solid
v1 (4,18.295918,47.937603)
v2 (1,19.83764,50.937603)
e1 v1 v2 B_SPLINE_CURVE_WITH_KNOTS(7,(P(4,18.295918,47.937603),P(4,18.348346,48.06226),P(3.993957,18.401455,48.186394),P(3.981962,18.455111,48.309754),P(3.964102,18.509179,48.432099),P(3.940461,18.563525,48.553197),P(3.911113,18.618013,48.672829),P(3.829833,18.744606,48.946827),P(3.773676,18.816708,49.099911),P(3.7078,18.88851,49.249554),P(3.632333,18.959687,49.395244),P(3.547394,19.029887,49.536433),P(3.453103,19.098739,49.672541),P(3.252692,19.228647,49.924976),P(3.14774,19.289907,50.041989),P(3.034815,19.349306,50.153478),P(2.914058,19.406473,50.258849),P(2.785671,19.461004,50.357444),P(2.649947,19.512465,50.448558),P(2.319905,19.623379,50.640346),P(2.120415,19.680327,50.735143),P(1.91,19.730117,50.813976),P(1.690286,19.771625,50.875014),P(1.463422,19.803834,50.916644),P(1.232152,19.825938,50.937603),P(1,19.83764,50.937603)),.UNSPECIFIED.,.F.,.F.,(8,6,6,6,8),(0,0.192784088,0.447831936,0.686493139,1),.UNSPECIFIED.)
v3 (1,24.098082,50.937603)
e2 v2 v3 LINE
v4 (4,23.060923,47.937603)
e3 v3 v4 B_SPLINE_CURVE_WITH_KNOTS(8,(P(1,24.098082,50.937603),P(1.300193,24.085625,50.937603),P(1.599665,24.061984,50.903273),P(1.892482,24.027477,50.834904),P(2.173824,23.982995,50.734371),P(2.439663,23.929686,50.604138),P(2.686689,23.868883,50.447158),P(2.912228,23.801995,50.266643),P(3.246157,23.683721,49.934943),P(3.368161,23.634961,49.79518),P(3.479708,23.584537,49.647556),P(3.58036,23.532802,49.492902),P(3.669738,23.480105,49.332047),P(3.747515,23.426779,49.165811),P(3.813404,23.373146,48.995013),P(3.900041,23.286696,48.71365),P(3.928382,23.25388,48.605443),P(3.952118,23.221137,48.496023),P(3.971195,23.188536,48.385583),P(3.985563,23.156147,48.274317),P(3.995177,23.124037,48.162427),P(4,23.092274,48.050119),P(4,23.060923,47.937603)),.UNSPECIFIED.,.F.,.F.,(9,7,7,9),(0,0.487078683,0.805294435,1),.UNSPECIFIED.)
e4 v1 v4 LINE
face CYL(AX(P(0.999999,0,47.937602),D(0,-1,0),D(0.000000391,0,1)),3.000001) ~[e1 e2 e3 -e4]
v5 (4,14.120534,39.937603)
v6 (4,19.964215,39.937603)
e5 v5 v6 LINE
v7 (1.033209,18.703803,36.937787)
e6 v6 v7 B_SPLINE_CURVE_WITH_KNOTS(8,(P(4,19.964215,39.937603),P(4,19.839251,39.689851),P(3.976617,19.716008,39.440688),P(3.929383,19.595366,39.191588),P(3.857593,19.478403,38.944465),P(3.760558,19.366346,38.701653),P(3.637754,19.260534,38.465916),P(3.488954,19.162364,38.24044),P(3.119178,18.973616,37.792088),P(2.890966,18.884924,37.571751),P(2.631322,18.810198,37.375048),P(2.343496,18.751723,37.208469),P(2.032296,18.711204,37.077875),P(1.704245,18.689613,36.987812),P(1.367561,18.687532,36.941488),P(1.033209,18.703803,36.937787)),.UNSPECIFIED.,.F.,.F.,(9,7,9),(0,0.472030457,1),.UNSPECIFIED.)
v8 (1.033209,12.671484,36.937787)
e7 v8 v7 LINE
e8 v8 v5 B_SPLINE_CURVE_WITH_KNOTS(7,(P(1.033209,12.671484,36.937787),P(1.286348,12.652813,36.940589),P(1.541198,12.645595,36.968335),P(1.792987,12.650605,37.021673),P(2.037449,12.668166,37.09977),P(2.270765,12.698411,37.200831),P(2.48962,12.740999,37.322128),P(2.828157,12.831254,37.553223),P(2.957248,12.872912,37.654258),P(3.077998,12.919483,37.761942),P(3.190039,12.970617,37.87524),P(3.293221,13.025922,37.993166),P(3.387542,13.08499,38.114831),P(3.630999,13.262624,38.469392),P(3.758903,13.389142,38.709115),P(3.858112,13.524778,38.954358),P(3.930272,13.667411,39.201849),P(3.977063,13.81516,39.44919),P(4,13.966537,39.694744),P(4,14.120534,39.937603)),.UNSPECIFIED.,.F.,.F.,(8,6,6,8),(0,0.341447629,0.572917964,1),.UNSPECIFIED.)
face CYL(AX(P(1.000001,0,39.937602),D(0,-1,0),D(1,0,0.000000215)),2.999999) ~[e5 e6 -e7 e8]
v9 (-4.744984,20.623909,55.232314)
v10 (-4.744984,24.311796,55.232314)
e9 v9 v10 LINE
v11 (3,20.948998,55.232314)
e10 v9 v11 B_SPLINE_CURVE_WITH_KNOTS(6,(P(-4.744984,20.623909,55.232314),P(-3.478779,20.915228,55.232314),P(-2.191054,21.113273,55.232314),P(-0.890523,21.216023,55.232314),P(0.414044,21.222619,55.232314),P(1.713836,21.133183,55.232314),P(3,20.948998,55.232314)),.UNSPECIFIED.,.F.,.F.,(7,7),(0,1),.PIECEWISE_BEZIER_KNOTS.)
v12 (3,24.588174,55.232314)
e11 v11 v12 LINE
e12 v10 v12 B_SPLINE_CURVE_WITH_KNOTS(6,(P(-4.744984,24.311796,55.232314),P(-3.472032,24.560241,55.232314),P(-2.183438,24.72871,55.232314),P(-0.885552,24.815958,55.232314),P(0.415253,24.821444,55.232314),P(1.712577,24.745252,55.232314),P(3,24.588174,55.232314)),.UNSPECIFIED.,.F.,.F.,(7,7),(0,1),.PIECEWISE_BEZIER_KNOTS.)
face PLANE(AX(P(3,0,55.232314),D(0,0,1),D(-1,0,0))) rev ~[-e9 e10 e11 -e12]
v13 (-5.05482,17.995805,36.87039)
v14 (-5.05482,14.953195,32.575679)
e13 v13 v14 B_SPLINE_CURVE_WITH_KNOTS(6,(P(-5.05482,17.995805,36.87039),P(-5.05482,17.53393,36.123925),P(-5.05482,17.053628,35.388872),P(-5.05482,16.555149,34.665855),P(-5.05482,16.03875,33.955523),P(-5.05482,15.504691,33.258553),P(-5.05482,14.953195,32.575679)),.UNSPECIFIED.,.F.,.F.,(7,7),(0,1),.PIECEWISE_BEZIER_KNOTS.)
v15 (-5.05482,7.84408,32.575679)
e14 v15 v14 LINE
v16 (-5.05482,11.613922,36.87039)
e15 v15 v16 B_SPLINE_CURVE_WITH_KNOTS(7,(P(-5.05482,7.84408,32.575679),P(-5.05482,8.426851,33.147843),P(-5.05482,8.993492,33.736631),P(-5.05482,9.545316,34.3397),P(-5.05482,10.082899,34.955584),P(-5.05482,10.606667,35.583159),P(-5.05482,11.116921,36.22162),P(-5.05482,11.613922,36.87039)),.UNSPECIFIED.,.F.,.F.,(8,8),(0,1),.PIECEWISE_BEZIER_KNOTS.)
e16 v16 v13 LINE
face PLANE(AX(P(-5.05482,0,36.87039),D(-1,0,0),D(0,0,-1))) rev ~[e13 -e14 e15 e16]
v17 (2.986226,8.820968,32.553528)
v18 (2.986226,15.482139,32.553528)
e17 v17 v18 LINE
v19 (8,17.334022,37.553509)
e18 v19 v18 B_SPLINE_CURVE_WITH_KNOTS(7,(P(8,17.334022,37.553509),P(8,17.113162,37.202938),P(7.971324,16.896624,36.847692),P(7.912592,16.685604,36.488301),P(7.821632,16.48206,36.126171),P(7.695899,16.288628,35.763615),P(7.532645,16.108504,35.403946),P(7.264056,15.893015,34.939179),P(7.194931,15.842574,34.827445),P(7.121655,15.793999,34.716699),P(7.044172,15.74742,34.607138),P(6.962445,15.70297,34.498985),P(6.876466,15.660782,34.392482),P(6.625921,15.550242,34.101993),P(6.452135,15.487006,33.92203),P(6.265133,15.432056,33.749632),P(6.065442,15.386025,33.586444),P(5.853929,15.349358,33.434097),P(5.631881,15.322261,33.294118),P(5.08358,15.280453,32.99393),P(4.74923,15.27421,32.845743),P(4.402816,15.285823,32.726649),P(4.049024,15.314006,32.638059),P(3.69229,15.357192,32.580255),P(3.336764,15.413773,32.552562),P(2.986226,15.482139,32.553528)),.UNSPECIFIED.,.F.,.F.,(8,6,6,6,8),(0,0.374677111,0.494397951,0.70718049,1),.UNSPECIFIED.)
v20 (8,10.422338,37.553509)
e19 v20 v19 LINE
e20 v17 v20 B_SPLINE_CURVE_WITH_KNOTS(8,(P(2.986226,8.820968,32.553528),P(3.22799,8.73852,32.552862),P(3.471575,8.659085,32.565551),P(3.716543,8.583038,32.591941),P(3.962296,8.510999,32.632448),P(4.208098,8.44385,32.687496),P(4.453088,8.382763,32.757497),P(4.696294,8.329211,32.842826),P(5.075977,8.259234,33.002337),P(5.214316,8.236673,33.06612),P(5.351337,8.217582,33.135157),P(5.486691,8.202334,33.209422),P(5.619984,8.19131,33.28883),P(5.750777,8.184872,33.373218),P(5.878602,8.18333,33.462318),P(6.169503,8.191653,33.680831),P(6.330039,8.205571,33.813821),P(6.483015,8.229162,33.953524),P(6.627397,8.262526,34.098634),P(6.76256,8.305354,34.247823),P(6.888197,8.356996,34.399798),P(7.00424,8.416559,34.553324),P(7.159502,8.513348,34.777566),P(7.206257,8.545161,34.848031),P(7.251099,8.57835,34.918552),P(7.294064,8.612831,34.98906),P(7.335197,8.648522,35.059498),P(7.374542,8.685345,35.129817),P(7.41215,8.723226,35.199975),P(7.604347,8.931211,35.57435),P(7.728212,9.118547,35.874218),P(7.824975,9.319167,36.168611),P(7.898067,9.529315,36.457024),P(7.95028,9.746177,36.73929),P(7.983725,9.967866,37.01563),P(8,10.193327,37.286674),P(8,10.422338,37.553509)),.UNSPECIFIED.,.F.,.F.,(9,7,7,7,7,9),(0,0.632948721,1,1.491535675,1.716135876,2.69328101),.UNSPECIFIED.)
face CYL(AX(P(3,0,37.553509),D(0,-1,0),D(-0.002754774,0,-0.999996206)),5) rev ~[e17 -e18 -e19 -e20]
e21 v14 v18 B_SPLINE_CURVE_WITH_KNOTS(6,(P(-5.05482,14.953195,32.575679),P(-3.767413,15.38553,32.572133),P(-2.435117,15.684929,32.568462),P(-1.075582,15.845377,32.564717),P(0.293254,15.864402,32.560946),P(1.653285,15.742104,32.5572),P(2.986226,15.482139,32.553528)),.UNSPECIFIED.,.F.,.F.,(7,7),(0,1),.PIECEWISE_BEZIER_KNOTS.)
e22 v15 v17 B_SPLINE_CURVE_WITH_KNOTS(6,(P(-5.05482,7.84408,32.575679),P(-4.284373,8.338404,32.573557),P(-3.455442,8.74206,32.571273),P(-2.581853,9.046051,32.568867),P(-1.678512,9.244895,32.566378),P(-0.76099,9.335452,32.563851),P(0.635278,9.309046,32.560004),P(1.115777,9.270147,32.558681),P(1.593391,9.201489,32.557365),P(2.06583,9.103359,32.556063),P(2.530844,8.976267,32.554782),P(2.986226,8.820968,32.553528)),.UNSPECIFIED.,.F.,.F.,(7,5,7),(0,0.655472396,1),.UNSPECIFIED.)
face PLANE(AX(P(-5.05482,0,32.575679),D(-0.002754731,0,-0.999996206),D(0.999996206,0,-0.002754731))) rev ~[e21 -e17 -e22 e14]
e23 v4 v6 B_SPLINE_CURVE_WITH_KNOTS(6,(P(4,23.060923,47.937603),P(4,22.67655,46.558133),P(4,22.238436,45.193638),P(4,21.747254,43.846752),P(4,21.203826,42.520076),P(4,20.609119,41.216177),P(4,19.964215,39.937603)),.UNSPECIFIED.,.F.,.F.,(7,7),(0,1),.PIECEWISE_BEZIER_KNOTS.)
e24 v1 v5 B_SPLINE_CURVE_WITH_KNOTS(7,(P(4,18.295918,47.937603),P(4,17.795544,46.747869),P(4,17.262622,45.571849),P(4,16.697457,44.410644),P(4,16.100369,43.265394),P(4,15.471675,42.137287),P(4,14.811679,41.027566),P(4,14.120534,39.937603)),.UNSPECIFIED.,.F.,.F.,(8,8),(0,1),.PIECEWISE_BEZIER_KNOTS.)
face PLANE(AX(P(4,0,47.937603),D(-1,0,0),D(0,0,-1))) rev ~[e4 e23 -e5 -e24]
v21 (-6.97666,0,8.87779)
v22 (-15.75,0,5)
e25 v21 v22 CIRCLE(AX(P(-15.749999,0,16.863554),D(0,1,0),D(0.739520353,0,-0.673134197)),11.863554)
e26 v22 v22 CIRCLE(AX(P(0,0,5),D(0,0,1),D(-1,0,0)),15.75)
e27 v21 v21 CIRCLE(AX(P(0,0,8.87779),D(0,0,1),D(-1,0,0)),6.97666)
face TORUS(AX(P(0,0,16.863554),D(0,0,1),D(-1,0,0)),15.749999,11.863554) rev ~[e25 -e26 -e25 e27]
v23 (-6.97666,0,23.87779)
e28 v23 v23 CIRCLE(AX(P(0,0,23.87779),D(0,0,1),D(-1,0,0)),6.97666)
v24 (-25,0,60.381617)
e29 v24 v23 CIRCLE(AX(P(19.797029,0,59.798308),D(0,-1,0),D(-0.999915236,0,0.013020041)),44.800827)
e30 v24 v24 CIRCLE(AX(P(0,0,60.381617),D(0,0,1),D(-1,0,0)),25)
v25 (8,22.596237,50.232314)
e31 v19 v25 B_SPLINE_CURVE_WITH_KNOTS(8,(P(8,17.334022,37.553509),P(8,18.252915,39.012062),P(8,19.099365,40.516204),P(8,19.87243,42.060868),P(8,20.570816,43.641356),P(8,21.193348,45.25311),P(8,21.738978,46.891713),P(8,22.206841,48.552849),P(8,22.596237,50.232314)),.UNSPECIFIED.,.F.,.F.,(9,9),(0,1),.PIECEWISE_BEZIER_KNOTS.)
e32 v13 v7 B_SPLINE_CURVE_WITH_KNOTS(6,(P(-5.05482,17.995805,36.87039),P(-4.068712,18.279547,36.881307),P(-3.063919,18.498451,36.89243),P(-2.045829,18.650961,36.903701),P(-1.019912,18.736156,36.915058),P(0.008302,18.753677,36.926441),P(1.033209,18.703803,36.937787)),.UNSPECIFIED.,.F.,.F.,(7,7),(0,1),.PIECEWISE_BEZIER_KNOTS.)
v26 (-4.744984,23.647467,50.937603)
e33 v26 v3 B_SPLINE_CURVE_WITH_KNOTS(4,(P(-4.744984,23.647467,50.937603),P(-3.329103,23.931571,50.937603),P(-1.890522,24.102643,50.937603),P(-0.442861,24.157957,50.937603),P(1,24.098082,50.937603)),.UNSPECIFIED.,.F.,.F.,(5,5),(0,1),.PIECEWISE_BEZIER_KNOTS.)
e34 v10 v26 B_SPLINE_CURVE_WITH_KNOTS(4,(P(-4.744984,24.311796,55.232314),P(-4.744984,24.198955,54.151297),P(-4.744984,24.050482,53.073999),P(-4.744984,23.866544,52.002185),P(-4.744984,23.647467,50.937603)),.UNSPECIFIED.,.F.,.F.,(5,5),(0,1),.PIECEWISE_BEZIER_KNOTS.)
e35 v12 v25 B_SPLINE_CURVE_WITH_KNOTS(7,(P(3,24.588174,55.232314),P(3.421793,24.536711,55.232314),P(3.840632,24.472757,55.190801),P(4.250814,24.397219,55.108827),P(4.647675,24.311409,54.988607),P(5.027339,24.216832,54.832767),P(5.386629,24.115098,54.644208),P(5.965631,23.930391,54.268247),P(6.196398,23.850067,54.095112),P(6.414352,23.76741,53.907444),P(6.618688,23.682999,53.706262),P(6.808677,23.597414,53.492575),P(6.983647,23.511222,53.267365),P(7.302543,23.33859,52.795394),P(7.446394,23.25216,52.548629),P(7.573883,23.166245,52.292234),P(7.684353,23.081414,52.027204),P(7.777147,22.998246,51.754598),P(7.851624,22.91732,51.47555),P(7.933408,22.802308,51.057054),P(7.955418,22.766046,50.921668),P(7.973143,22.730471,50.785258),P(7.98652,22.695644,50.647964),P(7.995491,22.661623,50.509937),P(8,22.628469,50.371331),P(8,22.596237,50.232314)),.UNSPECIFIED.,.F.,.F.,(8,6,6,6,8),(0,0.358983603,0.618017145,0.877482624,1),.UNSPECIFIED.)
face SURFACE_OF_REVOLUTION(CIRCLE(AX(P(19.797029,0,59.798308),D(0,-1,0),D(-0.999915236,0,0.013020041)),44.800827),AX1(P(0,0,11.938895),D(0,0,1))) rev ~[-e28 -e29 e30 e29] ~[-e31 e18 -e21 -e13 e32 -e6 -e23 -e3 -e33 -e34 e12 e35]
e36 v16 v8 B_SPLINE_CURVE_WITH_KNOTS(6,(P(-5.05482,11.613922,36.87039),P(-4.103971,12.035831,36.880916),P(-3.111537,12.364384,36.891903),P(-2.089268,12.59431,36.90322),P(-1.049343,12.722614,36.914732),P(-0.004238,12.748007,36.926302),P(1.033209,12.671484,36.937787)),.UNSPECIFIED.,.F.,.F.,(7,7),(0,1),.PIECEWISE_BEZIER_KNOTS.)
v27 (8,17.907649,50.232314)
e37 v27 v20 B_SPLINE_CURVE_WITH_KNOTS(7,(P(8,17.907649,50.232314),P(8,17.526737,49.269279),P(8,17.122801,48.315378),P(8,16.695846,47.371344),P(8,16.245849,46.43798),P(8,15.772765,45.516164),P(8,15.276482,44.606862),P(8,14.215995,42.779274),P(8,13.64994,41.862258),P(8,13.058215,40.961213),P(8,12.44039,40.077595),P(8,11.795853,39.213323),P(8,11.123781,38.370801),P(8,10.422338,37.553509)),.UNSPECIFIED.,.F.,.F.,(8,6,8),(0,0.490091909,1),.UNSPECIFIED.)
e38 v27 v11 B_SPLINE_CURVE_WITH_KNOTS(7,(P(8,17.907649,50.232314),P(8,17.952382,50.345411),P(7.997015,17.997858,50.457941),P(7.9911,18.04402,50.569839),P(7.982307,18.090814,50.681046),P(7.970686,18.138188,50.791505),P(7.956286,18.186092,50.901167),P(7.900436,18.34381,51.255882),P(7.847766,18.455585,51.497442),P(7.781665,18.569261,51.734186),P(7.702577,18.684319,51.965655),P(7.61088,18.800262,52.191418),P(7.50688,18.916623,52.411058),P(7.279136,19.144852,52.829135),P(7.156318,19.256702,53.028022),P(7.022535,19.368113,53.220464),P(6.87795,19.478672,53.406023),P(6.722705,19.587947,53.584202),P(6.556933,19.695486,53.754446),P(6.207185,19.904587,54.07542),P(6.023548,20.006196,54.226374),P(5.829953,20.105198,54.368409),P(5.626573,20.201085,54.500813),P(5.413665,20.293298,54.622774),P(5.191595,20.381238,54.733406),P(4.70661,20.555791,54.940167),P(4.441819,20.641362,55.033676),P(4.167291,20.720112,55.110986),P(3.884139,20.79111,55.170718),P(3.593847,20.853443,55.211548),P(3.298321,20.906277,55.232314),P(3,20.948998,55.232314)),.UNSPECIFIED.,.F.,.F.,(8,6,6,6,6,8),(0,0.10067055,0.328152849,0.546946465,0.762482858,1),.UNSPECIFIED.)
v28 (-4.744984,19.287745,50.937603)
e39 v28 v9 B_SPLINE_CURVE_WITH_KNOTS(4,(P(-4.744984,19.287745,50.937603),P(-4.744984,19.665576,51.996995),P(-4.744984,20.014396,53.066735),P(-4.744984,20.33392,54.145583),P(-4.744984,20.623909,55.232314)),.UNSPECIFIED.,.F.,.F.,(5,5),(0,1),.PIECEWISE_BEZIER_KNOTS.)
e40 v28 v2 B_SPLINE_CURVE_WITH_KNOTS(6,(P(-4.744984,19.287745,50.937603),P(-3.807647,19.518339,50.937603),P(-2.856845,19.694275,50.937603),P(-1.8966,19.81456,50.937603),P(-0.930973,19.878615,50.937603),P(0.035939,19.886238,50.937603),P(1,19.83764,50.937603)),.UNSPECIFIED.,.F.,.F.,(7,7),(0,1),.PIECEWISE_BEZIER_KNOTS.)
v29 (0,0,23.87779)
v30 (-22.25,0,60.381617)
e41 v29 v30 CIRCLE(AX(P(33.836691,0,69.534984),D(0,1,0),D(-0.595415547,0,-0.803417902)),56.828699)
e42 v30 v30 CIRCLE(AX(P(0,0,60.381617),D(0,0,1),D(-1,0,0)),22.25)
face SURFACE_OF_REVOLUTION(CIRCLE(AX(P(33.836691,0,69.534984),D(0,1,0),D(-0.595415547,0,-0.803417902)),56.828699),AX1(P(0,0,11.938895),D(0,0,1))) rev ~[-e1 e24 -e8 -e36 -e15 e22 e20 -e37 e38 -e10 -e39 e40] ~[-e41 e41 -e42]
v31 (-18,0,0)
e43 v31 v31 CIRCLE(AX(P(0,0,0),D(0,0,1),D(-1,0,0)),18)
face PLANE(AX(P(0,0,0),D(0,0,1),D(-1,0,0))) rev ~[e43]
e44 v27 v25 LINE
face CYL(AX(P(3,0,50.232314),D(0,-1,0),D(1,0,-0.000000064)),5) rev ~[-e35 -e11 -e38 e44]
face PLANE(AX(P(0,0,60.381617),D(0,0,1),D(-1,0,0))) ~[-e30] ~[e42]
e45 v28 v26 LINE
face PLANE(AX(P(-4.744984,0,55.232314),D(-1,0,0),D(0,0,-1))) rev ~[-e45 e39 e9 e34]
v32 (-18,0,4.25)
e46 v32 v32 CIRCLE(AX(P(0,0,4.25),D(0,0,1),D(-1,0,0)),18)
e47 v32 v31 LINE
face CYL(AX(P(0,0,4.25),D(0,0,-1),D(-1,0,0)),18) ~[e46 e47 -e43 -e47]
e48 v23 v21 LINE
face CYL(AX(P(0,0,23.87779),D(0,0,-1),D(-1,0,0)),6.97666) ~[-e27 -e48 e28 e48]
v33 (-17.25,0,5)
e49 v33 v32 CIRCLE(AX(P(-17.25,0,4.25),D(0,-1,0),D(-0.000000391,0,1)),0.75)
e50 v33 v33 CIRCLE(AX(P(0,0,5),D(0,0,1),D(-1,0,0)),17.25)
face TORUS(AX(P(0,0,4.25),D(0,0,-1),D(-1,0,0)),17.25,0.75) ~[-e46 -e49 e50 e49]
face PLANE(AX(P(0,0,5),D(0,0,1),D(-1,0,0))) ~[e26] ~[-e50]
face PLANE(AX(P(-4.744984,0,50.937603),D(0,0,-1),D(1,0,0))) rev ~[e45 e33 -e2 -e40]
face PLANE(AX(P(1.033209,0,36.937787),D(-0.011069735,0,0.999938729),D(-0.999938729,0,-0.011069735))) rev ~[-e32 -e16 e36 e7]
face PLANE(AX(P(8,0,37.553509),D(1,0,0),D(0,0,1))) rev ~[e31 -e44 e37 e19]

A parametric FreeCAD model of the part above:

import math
import FreeCAD as App
import Part
import Sketcher

doc = App.newDocument("Part")
body = doc.addObject("PartDesign::Body", "Body")

# Sketch on XZ plane
sketch1 = body.newObject("Sketcher::SketchObject", "Sketch")
sketch1.AttachmentSupport = (doc.getObject("XZ_Plane"), [""])
sketch1.MapMode = "FlatFace"
sketch1.addGeometry(Part.LineSegment(App.Vector(-18, 0, 0), App.Vector(0, 0, 0)), False)
sketch1.addGeometry(Part.LineSegment(App.Vector(0, 0, 0), App.Vector(0, 23.9, 0)), False)
sketch1.addGeometry(Part.ArcOfCircle(Part.Circle(App.Vector(33.8, 69.5, 0), App.Vector(0, 0, 1), 56.8), math.radians(-171), math.radians(-127)), False)
sketch1.addGeometry(Part.LineSegment(App.Vector(-22.2, 60.4, 0), App.Vector(-25, 60.4, 0)), False)
sketch1.addGeometry(Part.ArcOfCircle(Part.Circle(App.Vector(19.8, 59.8, 0), App.Vector(0, 0, 1), 44.8), math.radians(179), math.radians(233)), False)
sketch1.addGeometry(Part.LineSegment(App.Vector(-7, 23.9, 0), App.Vector(-7, 8.9, 0)), False)
sketch1.addGeometry(Part.ArcOfCircle(Part.Circle(App.Vector(-15.7, 16.9, 0), App.Vector(0, 0, 1), 11.9), math.radians(-90), math.radians(-42)), False)
sketch1.addGeometry(Part.LineSegment(App.Vector(-15.8, 5, 0), App.Vector(-17.2, 5, 0)), False)
sketch1.addGeometry(Part.ArcOfCircle(Part.Circle(App.Vector(-17.2, 4.2, 0), App.Vector(0, 0, 1), 0.8), math.radians(90), math.radians(180)), False)
sketch1.addGeometry(Part.LineSegment(App.Vector(-18, 4.2, 0), App.Vector(-18, 0, 0)), False)
sketch1.addConstraint(Sketcher.Constraint("Coincident", 0, 2, 1, 1))
sketch1.addConstraint(Sketcher.Constraint("Coincident", 1, 2, 2, 2))
sketch1.addConstraint(Sketcher.Constraint("Coincident", 2, 1, 3, 1))
sketch1.addConstraint(Sketcher.Constraint("Coincident", 3, 2, 4, 1))
sketch1.addConstraint(Sketcher.Constraint("Coincident", 4, 2, 5, 1))
sketch1.addConstraint(Sketcher.Constraint("Coincident", 5, 2, 6, 2))
sketch1.addConstraint(Sketcher.Constraint("Tangent", 6, 1, 7, 1))
sketch1.addConstraint(Sketcher.Constraint("Tangent", 7, 2, 8, 1))
sketch1.addConstraint(Sketcher.Constraint("Tangent", 8, 2, 9, 1))
sketch1.addConstraint(Sketcher.Constraint("Coincident", 9, 2, 0, 1))
sketch1.addConstraint(Sketcher.Constraint("Horizontal", 0))
sketch1.addConstraint(Sketcher.Constraint("Vertical", 1))
sketch1.addConstraint(Sketcher.Constraint("Horizontal", 3))
sketch1.addConstraint(Sketcher.Constraint("Vertical", 5))
sketch1.addConstraint(Sketcher.Constraint("Horizontal", 7))
sketch1.addConstraint(Sketcher.Constraint("Vertical", 9))
sketch1.addConstraint(Sketcher.Constraint("Coincident", 0, 2, -1, 1))
sketch1.addConstraint(Sketcher.Constraint("Horizontal", 1, 2, 4, 2))
sketch1.addConstraint(Sketcher.Constraint("DistanceX", 0, 1, 0, 2, 18.0))
sketch1.addConstraint(Sketcher.Constraint("DistanceY", 5, 2, 5, 1, 15.0))
sketch1.addConstraint(Sketcher.Constraint("Radius", 8, 0.75))
sketch1.addConstraint(Sketcher.Constraint("DistanceX", 7, 2, 7, 1, 1.5))
sketch1.addConstraint(Sketcher.Constraint("DistanceX", 3, 2, -1, 1, 25.0))
sketch1.addConstraint(Sketcher.Constraint("DistanceY", -1, 1, 6, 1, 5.0))
sketch1.addConstraint(Sketcher.Constraint("DistanceX", 2, 1, 8, 3, 5.0))
sketch1.addConstraint(Sketcher.Constraint("Radius", 2, 56.828699))
sketch1.addConstraint(Sketcher.Constraint("Radius", 4, 44.800827))
sketch1.addConstraint(Sketcher.Constraint("Radius", 6, 11.863554))
sketch1.addConstraint(Sketcher.Constraint("DistanceY", 1, 1, 1, 2, 23.87779))
sketch1.addConstraint(Sketcher.Constraint("DistanceX", -1, 1, 2, 3, 33.836691))
revolution = body.newObject("PartDesign::Revolution", "Revolution")
revolution.Profile = sketch1
revolution.ReferenceAxis = (sketch1, ["V_Axis"])
revolution.Angle = 360

# Sketch on XZ plane
sketch2 = body.newObject("Sketcher::SketchObject", "Sketch001")
sketch2.AttachmentSupport = (doc.getObject("XZ_Plane"), [""])
sketch2.MapMode = "FlatFace"
sketch2.addGeometry(Part.LineSegment(App.Vector(3, 55.2, 0), App.Vector(-4.7, 55.2, 0)), False)
sketch2.addGeometry(Part.LineSegment(App.Vector(-4.7, 55.2, 0), App.Vector(-4.7, 50.9, 0)), False)
sketch2.addGeometry(Part.LineSegment(App.Vector(-4.7, 50.9, 0), App.Vector(1, 50.9, 0)), False)
sketch2.addGeometry(Part.ArcOfCircle(Part.Circle(App.Vector(1, 47.9, 0), App.Vector(0, 0, 1), 3), math.radians(0), math.radians(90)), False)
sketch2.addGeometry(Part.LineSegment(App.Vector(4, 47.9, 0), App.Vector(4, 39.9, 0)), False)
sketch2.addGeometry(Part.ArcOfCircle(Part.Circle(App.Vector(1, 39.9, 0), App.Vector(0, 0, 1), 3), math.radians(-89), math.radians(0)), False)
sketch2.addGeometry(Part.LineSegment(App.Vector(1, 36.9, 0), App.Vector(-5.1, 36.9, 0)), False)
sketch2.addGeometry(Part.LineSegment(App.Vector(-5.1, 36.9, 0), App.Vector(-5.1, 32.6, 0)), False)
sketch2.addGeometry(Part.LineSegment(App.Vector(-5.1, 32.6, 0), App.Vector(3, 32.6, 0)), False)
sketch2.addGeometry(Part.ArcOfCircle(Part.Circle(App.Vector(3, 37.6, 0), App.Vector(0, 0, 1), 5), math.radians(-90), math.radians(0)), False)
sketch2.addGeometry(Part.LineSegment(App.Vector(8, 37.6, 0), App.Vector(8, 50.2, 0)), False)
sketch2.addGeometry(Part.ArcOfCircle(Part.Circle(App.Vector(3, 50.2, 0), App.Vector(0, 0, 1), 5), math.radians(0), math.radians(90)), False)
sketch2.addConstraint(Sketcher.Constraint("Coincident", 0, 2, 1, 1))
sketch2.addConstraint(Sketcher.Constraint("Coincident", 1, 2, 2, 1))
sketch2.addConstraint(Sketcher.Constraint("Tangent", 2, 2, 3, 2))
sketch2.addConstraint(Sketcher.Constraint("Tangent", 3, 1, 4, 1))
sketch2.addConstraint(Sketcher.Constraint("Tangent", 4, 2, 5, 2))
sketch2.addConstraint(Sketcher.Constraint("Tangent", 5, 1, 6, 1))
sketch2.addConstraint(Sketcher.Constraint("Coincident", 6, 2, 7, 1))
sketch2.addConstraint(Sketcher.Constraint("Coincident", 7, 2, 8, 1))
sketch2.addConstraint(Sketcher.Constraint("Tangent", 8, 2, 9, 1))
sketch2.addConstraint(Sketcher.Constraint("Tangent", 9, 2, 10, 1))
sketch2.addConstraint(Sketcher.Constraint("Tangent", 10, 2, 11, 1))
sketch2.addConstraint(Sketcher.Constraint("Tangent", 11, 2, 0, 1))
sketch2.addConstraint(Sketcher.Constraint("Horizontal", 0))
sketch2.addConstraint(Sketcher.Constraint("Vertical", 1))
sketch2.addConstraint(Sketcher.Constraint("Horizontal", 2))
sketch2.addConstraint(Sketcher.Constraint("Vertical", 4))
sketch2.addConstraint(Sketcher.Constraint("Vertical", 7))
sketch2.addConstraint(Sketcher.Constraint("Vertical", 10))
sketch2.addConstraint(Sketcher.Constraint("Equal", 9, 11))
sketch2.addConstraint(Sketcher.Constraint("Vertical", 5, 3, 2, 2))
sketch2.addConstraint(Sketcher.Constraint("Equal", 1, 7))
sketch2.addConstraint(Sketcher.Constraint("Radius", 3, 3.000001))
sketch2.addConstraint(Sketcher.Constraint("Radius", 9, 5.0))
sketch2.addConstraint(Sketcher.Constraint("DistanceY", 4, 2, 4, 1, 8.0))
sketch2.addConstraint(Sketcher.Constraint("DistanceX", -1, 1, 3, 3, 0.999999))
sketch2.addConstraint(Sketcher.Constraint("DistanceX", -1, 1, 9, 3, 3.0))
sketch2.addConstraint(Sketcher.Constraint("DistanceY", 1, 2, 1, 1, 4.294711))
sketch2.addConstraint(Sketcher.Constraint("DistanceY", -1, 1, 3, 3, 47.937602))
sketch2.addConstraint(Sketcher.Constraint("DistanceX", 0, 2, 0, 1, 7.744984))
sketch2.addConstraint(Sketcher.Constraint("DistanceY", 10, 1, 10, 2, 12.678805))
sketch2.addConstraint(Sketcher.Constraint("DistanceX", -1, 1, 5, 1, 1.033209))
sketch2.addConstraint(Sketcher.Constraint("DistanceX", 6, 2, -1, 1, 5.05482))
pocket1 = body.newObject("PartDesign::Pocket", "Pocket")
pocket1.Profile = sketch2
pocket1.Type = "ThroughAll"

doc.recompute()
